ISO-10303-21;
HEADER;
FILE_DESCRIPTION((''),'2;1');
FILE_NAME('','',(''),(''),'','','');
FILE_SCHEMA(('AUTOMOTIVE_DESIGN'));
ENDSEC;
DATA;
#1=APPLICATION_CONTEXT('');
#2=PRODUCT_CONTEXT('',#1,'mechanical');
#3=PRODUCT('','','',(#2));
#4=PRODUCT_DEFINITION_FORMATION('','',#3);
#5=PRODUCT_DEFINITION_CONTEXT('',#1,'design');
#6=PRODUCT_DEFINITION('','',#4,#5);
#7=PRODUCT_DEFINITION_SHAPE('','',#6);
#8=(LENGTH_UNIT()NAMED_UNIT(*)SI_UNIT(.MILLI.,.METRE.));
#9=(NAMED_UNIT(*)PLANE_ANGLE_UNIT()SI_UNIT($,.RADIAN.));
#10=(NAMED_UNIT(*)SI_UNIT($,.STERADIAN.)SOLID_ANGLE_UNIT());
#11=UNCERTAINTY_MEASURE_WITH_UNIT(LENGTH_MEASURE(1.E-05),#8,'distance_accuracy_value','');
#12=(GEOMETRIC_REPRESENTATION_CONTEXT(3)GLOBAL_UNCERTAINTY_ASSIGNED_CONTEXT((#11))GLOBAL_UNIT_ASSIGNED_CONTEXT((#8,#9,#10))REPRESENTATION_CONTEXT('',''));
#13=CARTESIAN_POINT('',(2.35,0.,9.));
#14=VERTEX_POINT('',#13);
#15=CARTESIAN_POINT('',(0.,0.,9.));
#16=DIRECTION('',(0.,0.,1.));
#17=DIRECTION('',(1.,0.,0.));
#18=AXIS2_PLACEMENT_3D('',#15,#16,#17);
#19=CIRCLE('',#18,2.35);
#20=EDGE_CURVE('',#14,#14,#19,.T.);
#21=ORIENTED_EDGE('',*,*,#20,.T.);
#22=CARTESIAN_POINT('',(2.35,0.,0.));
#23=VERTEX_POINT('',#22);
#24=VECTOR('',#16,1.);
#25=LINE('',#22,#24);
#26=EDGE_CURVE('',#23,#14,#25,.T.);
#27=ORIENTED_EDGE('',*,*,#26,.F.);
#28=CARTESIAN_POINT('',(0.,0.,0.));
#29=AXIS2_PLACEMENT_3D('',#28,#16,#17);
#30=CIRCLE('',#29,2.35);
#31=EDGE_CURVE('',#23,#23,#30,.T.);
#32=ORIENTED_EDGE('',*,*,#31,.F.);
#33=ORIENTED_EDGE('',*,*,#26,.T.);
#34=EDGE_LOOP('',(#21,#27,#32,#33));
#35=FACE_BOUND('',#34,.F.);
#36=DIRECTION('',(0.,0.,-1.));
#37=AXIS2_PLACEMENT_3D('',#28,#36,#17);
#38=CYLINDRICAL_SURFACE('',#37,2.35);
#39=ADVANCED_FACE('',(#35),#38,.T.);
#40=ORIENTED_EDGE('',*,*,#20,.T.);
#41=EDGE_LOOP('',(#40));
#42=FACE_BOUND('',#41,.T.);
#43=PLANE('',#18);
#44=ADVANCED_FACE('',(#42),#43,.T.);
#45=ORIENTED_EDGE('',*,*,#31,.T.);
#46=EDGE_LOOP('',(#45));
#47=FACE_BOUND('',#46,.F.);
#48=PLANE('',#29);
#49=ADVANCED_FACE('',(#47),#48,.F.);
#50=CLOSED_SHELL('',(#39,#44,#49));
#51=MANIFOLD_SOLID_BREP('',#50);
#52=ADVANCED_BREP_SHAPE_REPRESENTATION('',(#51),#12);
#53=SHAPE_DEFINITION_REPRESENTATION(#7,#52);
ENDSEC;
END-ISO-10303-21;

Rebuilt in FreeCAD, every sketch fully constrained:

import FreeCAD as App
import Part
import Sketcher

V = App.Vector

doc = App.newDocument("Part")
body = doc.addObject("PartDesign::Body", "Body")

# Sketch on XY plane
sketch1 = body.newObject("Sketcher::SketchObject", "Sketch")
sketch1.AttachmentSupport = (doc.getObject("XY_Plane"), [""])
sketch1.MapMode = "FlatFace"
sketch1.addGeometry(Part.Circle(V(0, 0, 0), V(0, 0, 1), 2.4), False)
sketch1.addConstraint([
    Sketcher.Constraint("Coincident", 0, 3, -1, 1),
    Sketcher.Constraint("Diameter", 0, 4.7),
])
pad1 = body.newObject("PartDesign::Pad", "Pad")
pad1.Profile = sketch1
pad1.Length = 9

doc.recompute()
